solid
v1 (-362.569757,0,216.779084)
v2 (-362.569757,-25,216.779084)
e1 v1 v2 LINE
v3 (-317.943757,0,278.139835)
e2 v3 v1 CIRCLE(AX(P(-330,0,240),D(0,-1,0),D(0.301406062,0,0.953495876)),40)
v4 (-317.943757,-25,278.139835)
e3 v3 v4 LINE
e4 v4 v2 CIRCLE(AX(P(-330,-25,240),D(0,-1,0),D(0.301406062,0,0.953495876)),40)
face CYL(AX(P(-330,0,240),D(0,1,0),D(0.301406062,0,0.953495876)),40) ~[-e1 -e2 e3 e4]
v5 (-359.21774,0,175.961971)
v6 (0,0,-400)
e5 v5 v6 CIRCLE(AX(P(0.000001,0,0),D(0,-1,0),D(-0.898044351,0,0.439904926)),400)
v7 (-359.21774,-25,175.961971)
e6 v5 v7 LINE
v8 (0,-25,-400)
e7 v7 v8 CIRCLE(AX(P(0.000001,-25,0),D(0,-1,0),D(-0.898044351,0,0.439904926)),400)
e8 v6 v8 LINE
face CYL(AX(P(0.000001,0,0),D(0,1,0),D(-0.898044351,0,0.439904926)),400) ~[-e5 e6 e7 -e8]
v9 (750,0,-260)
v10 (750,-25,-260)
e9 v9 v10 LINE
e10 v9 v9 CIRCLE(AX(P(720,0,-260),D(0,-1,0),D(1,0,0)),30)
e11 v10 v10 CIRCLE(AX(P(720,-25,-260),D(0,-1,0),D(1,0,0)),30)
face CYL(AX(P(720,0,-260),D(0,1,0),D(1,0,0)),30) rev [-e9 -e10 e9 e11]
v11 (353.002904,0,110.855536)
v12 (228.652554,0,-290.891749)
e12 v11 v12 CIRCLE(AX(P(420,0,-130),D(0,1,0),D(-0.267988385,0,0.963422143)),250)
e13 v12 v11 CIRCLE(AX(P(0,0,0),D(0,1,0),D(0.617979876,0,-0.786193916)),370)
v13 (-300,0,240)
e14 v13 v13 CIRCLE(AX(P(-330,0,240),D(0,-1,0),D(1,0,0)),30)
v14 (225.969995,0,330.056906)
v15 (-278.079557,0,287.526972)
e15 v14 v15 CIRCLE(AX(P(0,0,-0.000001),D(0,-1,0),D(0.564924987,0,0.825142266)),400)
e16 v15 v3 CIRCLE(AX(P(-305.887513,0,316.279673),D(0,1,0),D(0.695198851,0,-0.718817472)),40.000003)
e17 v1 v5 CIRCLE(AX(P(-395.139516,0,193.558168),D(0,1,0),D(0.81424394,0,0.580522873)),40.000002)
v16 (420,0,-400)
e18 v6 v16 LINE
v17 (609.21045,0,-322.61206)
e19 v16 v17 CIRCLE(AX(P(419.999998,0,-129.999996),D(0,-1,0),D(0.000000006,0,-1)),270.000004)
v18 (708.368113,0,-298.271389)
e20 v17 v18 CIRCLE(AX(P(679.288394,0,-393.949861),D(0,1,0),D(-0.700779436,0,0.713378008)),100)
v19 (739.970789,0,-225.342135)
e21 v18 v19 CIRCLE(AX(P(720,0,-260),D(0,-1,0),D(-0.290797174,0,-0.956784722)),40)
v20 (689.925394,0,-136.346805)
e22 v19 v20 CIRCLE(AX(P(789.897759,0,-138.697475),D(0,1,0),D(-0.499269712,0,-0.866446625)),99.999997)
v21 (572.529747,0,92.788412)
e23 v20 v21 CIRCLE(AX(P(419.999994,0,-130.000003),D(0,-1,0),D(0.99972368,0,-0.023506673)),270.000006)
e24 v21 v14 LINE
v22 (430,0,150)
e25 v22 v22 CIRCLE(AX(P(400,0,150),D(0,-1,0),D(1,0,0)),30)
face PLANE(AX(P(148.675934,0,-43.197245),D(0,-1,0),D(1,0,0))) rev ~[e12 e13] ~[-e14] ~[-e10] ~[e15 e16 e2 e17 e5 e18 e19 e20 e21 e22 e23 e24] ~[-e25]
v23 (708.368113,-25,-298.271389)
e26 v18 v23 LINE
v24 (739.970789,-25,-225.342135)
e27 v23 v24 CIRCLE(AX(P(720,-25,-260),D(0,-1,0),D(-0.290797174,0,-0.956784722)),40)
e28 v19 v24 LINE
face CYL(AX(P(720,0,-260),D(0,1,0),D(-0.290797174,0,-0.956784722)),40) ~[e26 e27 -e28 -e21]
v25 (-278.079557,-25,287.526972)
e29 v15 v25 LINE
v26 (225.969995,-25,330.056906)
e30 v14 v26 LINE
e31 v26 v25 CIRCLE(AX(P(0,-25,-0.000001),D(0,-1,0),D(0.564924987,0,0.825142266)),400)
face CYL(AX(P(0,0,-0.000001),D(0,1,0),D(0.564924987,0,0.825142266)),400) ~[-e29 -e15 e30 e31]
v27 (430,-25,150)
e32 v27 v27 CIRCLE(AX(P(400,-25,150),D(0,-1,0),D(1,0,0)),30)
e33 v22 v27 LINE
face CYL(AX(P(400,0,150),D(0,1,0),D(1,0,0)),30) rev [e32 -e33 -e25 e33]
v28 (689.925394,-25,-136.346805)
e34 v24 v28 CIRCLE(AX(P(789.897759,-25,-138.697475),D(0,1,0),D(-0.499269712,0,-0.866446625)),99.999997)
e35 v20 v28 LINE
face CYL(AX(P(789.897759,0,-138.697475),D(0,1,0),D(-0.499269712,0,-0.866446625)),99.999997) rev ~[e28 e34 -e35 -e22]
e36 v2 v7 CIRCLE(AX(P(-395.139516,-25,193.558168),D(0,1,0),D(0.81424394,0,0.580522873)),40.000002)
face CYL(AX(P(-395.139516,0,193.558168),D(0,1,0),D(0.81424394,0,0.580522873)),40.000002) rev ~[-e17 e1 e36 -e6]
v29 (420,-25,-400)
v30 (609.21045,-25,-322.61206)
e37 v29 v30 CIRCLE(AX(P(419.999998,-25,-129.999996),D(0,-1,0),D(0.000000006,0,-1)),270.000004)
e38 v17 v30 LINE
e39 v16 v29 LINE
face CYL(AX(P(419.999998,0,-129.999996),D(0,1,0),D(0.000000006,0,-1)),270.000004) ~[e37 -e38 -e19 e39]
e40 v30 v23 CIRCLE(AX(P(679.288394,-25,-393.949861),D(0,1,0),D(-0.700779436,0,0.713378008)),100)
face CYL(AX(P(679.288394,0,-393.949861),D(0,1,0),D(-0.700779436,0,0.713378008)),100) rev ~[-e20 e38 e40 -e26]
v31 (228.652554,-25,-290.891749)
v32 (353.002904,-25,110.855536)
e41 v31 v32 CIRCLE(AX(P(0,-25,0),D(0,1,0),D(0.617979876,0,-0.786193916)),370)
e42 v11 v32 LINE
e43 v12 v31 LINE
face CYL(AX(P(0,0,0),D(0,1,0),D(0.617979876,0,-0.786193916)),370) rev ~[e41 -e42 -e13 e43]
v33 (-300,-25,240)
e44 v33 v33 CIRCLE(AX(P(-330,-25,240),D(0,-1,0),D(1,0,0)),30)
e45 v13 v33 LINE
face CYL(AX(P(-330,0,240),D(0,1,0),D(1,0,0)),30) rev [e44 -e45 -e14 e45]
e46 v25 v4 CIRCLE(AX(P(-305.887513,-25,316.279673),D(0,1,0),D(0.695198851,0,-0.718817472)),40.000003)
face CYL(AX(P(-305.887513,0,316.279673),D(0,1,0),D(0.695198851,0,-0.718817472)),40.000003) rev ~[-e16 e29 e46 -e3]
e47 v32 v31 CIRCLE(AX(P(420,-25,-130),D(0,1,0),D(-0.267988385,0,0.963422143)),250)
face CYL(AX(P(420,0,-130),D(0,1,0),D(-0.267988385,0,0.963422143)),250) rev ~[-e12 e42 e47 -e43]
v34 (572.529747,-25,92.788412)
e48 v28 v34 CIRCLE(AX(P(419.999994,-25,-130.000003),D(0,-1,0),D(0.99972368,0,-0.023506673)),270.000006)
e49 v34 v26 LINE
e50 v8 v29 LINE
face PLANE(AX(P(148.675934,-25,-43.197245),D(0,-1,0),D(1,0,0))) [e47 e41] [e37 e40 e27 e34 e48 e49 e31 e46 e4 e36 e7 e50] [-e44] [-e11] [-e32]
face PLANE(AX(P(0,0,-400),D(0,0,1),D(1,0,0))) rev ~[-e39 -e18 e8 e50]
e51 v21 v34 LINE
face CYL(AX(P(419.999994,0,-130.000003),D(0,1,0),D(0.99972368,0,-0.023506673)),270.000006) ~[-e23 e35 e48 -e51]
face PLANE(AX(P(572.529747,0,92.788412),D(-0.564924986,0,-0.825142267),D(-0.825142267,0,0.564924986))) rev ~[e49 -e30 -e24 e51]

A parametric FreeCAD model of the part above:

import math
import FreeCAD as App
import Part
import Sketcher

V = App.Vector

doc = App.newDocument("Part")
body = doc.addObject("PartDesign::Body", "Body")

# Sketch on XZ plane
sketch1 = doc.addObject("Sketcher::SketchObject", "Sketch")
body.addObject(sketch1)
sketch1.AttachmentSupport = (doc.XZ_Plane, [""])
sketch1.MapMode = "FlatFace"
sketch1.addGeometry(Part.ArcOfCircle(Part.Circle(V(-395, 194, 0), V(0, 0, 1), 40), math.radians(-26), math.radians(35)), False)
sketch1.addGeometry(Part.ArcOfCircle(Part.Circle(V(0, 0, 0), V(0, 0, 1), 400), math.radians(154), math.radians(270)), False)
sketch1.addGeometry(Part.LineSegment(V(0, -400, 0), V(420, -400, 0)), False)
sketch1.addGeometry(Part.ArcOfCircle(Part.Circle(V(420, -130, 0), V(0, 0, 1), 270), math.radians(-90), math.radians(-46)), False)
sketch1.addGeometry(Part.ArcOfCircle(Part.Circle(V(679, -394, 0), V(0, 0, 1), 100), math.radians(73), math.radians(134)), False)
sketch1.addGeometry(Part.ArcOfCircle(Part.Circle(V(720, -260, 0), V(0, 0, 1), 40), math.radians(-107), math.radians(60)), False)
sketch1.addGeometry(Part.ArcOfCircle(Part.Circle(V(790, -139, 0), V(0, 0, 1), 100), math.radians(179), math.radians(240)), False)
sketch1.addGeometry(Part.ArcOfCircle(Part.Circle(V(420, -130, 0), V(0, 0, 1), 270), math.radians(-1), math.radians(56)), False)
sketch1.addGeometry(Part.LineSegment(V(573, 93, 0), V(226, 330, 0)), False)
sketch1.addGeometry(Part.ArcOfCircle(Part.Circle(V(0, 0, 0), V(0, 0, 1), 400), math.radians(56), math.radians(134)), False)
sketch1.addGeometry(Part.ArcOfCircle(Part.Circle(V(-306, 316, 0), V(0, 0, 1), 40), math.radians(-108), math.radians(-46)), False)
sketch1.addGeometry(Part.ArcOfCircle(Part.Circle(V(-330, 240, 0), V(0, 0, 1), 40), math.radians(72), math.radians(215)), False)
sketch1.addGeometry(Part.Circle(V(720, -260, 0), V(0, 0, 1), 30), False)
sketch1.addGeometry(Part.ArcOfCircle(Part.Circle(V(420, -130, 0), V(0, 0, 1), 250), math.radians(-140), math.radians(106)), False)
sketch1.addGeometry(Part.ArcOfCircle(Part.Circle(V(0, 0, 0), V(0, 0, 1), 370), math.radians(17), math.radians(308)), False)
sketch1.addGeometry(Part.Circle(V(-330, 240, 0), V(0, 0, 1), 30), False)
sketch1.addGeometry(Part.Circle(V(400, 150, 0), V(0, 0, 1), 30), False)
sketch1.addConstraint(Sketcher.Constraint("Tangent", 0, 1, 1, 1))
sketch1.addConstraint(Sketcher.Constraint("Tangent", 1, 2, 2, 1))
sketch1.addConstraint(Sketcher.Constraint("Tangent", 2, 2, 3, 1))
sketch1.addConstraint(Sketcher.Constraint("Tangent", 3, 2, 4, 2))
sketch1.addConstraint(Sketcher.Constraint("Tangent", 4, 1, 5, 1))
sketch1.addConstraint(Sketcher.Constraint("Tangent", 5, 2, 6, 2))
sketch1.addConstraint(Sketcher.Constraint("Tangent", 6, 1, 7, 1))
sketch1.addConstraint(Sketcher.Constraint("Tangent", 7, 2, 8, 1))
sketch1.addConstraint(Sketcher.Constraint("Tangent", 8, 2, 9, 1))
sketch1.addConstraint(Sketcher.Constraint("Tangent", 9, 2, 10, 2))
sketch1.addConstraint(Sketcher.Constraint("Tangent", 10, 1, 11, 1))
sketch1.addConstraint(Sketcher.Constraint("Tangent", 11, 2, 0, 2))
sketch1.addConstraint(Sketcher.Constraint("Coincident", 13, 1, 14, 2))
sketch1.addConstraint(Sketcher.Constraint("Coincident", 14, 1, 13, 2))
sketch1.addConstraint(Sketcher.Constraint("Horizontal", 2))
sketch1.addConstraint(Sketcher.Constraint("Coincident", 1, 3, -1, 1))
sketch1.addConstraint(Sketcher.Constraint("Coincident", 9, 3, -1, 1))
sketch1.addConstraint(Sketcher.Constraint("Coincident", 14, 3, -1, 1))
sketch1.addConstraint(Sketcher.Constraint("Coincident", 7, 3, 3, 3))
sketch1.addConstraint(Sketcher.Constraint("Coincident", 12, 3, 5, 3))
sketch1.addConstraint(Sketcher.Constraint("Coincident", 13, 3, 3, 3))
sketch1.addConstraint(Sketcher.Constraint("Coincident", 15, 3, 11, 3))
sketch1.addConstraint(Sketcher.Constraint("Equal", 0, 5))
sketch1.addConstraint(Sketcher.Constraint("Equal", 3, 7))
sketch1.addConstraint(Sketcher.Constraint("Equal", 1, 9))
sketch1.addConstraint(Sketcher.Constraint("Equal", 0, 10))
sketch1.addConstraint(Sketcher.Constraint("Equal", 5, 11))
sketch1.addConstraint(Sketcher.Constraint("Equal", 12, 15))
sketch1.addConstraint(Sketcher.Constraint("Equal", 15, 16))
sketch1.addConstraint(Sketcher.Constraint("Diameter", 12, 60.0))
sketch1.addConstraint(Sketcher.Constraint("Radius", 0, 40.000002))
sketch1.addConstraint(Sketcher.Constraint("Radius", 1, 400.0))
sketch1.addConstraint(Sketcher.Constraint("Radius", 4, 100.0))
sketch1.addConstraint(Sketcher.Constraint("Radius", 13, 250.0))
sketch1.addConstraint(Sketcher.Constraint("Radius", 14, 370.0))
sketch1.addConstraint(Sketcher.Constraint("DistanceX", 2, 1, 2, 2, 420.0))
sketch1.addConstraint(Sketcher.Constraint("DistanceX", -1, 1, 5, 3, 720.0))
sketch1.addConstraint(Sketcher.Constraint("DistanceY", 5, 3, -1, 1, 260.0))
sketch1.addConstraint(Sketcher.Constraint("DistanceX", 11, 3, -1, 1, 330.0))
sketch1.addConstraint(Sketcher.Constraint("DistanceY", -1, 1, 11, 3, 240.0))
sketch1.addConstraint(Sketcher.Constraint("DistanceY", 13, 3, -1, 1, 130.0))
sketch1.addConstraint(Sketcher.Constraint("DistanceX", -1, 1, 16, 3, 400.0))
sketch1.addConstraint(Sketcher.Constraint("DistanceY", -1, 1, 16, 3, 150.0))
sketch1.addConstraint(Sketcher.Constraint("Radius", 6, 99.999997))
pad1 = doc.addObject("PartDesign::Pad", "Pad")
body.addObject(pad1)
pad1.Profile = sketch1
pad1.Length = 25

doc.recompute()
